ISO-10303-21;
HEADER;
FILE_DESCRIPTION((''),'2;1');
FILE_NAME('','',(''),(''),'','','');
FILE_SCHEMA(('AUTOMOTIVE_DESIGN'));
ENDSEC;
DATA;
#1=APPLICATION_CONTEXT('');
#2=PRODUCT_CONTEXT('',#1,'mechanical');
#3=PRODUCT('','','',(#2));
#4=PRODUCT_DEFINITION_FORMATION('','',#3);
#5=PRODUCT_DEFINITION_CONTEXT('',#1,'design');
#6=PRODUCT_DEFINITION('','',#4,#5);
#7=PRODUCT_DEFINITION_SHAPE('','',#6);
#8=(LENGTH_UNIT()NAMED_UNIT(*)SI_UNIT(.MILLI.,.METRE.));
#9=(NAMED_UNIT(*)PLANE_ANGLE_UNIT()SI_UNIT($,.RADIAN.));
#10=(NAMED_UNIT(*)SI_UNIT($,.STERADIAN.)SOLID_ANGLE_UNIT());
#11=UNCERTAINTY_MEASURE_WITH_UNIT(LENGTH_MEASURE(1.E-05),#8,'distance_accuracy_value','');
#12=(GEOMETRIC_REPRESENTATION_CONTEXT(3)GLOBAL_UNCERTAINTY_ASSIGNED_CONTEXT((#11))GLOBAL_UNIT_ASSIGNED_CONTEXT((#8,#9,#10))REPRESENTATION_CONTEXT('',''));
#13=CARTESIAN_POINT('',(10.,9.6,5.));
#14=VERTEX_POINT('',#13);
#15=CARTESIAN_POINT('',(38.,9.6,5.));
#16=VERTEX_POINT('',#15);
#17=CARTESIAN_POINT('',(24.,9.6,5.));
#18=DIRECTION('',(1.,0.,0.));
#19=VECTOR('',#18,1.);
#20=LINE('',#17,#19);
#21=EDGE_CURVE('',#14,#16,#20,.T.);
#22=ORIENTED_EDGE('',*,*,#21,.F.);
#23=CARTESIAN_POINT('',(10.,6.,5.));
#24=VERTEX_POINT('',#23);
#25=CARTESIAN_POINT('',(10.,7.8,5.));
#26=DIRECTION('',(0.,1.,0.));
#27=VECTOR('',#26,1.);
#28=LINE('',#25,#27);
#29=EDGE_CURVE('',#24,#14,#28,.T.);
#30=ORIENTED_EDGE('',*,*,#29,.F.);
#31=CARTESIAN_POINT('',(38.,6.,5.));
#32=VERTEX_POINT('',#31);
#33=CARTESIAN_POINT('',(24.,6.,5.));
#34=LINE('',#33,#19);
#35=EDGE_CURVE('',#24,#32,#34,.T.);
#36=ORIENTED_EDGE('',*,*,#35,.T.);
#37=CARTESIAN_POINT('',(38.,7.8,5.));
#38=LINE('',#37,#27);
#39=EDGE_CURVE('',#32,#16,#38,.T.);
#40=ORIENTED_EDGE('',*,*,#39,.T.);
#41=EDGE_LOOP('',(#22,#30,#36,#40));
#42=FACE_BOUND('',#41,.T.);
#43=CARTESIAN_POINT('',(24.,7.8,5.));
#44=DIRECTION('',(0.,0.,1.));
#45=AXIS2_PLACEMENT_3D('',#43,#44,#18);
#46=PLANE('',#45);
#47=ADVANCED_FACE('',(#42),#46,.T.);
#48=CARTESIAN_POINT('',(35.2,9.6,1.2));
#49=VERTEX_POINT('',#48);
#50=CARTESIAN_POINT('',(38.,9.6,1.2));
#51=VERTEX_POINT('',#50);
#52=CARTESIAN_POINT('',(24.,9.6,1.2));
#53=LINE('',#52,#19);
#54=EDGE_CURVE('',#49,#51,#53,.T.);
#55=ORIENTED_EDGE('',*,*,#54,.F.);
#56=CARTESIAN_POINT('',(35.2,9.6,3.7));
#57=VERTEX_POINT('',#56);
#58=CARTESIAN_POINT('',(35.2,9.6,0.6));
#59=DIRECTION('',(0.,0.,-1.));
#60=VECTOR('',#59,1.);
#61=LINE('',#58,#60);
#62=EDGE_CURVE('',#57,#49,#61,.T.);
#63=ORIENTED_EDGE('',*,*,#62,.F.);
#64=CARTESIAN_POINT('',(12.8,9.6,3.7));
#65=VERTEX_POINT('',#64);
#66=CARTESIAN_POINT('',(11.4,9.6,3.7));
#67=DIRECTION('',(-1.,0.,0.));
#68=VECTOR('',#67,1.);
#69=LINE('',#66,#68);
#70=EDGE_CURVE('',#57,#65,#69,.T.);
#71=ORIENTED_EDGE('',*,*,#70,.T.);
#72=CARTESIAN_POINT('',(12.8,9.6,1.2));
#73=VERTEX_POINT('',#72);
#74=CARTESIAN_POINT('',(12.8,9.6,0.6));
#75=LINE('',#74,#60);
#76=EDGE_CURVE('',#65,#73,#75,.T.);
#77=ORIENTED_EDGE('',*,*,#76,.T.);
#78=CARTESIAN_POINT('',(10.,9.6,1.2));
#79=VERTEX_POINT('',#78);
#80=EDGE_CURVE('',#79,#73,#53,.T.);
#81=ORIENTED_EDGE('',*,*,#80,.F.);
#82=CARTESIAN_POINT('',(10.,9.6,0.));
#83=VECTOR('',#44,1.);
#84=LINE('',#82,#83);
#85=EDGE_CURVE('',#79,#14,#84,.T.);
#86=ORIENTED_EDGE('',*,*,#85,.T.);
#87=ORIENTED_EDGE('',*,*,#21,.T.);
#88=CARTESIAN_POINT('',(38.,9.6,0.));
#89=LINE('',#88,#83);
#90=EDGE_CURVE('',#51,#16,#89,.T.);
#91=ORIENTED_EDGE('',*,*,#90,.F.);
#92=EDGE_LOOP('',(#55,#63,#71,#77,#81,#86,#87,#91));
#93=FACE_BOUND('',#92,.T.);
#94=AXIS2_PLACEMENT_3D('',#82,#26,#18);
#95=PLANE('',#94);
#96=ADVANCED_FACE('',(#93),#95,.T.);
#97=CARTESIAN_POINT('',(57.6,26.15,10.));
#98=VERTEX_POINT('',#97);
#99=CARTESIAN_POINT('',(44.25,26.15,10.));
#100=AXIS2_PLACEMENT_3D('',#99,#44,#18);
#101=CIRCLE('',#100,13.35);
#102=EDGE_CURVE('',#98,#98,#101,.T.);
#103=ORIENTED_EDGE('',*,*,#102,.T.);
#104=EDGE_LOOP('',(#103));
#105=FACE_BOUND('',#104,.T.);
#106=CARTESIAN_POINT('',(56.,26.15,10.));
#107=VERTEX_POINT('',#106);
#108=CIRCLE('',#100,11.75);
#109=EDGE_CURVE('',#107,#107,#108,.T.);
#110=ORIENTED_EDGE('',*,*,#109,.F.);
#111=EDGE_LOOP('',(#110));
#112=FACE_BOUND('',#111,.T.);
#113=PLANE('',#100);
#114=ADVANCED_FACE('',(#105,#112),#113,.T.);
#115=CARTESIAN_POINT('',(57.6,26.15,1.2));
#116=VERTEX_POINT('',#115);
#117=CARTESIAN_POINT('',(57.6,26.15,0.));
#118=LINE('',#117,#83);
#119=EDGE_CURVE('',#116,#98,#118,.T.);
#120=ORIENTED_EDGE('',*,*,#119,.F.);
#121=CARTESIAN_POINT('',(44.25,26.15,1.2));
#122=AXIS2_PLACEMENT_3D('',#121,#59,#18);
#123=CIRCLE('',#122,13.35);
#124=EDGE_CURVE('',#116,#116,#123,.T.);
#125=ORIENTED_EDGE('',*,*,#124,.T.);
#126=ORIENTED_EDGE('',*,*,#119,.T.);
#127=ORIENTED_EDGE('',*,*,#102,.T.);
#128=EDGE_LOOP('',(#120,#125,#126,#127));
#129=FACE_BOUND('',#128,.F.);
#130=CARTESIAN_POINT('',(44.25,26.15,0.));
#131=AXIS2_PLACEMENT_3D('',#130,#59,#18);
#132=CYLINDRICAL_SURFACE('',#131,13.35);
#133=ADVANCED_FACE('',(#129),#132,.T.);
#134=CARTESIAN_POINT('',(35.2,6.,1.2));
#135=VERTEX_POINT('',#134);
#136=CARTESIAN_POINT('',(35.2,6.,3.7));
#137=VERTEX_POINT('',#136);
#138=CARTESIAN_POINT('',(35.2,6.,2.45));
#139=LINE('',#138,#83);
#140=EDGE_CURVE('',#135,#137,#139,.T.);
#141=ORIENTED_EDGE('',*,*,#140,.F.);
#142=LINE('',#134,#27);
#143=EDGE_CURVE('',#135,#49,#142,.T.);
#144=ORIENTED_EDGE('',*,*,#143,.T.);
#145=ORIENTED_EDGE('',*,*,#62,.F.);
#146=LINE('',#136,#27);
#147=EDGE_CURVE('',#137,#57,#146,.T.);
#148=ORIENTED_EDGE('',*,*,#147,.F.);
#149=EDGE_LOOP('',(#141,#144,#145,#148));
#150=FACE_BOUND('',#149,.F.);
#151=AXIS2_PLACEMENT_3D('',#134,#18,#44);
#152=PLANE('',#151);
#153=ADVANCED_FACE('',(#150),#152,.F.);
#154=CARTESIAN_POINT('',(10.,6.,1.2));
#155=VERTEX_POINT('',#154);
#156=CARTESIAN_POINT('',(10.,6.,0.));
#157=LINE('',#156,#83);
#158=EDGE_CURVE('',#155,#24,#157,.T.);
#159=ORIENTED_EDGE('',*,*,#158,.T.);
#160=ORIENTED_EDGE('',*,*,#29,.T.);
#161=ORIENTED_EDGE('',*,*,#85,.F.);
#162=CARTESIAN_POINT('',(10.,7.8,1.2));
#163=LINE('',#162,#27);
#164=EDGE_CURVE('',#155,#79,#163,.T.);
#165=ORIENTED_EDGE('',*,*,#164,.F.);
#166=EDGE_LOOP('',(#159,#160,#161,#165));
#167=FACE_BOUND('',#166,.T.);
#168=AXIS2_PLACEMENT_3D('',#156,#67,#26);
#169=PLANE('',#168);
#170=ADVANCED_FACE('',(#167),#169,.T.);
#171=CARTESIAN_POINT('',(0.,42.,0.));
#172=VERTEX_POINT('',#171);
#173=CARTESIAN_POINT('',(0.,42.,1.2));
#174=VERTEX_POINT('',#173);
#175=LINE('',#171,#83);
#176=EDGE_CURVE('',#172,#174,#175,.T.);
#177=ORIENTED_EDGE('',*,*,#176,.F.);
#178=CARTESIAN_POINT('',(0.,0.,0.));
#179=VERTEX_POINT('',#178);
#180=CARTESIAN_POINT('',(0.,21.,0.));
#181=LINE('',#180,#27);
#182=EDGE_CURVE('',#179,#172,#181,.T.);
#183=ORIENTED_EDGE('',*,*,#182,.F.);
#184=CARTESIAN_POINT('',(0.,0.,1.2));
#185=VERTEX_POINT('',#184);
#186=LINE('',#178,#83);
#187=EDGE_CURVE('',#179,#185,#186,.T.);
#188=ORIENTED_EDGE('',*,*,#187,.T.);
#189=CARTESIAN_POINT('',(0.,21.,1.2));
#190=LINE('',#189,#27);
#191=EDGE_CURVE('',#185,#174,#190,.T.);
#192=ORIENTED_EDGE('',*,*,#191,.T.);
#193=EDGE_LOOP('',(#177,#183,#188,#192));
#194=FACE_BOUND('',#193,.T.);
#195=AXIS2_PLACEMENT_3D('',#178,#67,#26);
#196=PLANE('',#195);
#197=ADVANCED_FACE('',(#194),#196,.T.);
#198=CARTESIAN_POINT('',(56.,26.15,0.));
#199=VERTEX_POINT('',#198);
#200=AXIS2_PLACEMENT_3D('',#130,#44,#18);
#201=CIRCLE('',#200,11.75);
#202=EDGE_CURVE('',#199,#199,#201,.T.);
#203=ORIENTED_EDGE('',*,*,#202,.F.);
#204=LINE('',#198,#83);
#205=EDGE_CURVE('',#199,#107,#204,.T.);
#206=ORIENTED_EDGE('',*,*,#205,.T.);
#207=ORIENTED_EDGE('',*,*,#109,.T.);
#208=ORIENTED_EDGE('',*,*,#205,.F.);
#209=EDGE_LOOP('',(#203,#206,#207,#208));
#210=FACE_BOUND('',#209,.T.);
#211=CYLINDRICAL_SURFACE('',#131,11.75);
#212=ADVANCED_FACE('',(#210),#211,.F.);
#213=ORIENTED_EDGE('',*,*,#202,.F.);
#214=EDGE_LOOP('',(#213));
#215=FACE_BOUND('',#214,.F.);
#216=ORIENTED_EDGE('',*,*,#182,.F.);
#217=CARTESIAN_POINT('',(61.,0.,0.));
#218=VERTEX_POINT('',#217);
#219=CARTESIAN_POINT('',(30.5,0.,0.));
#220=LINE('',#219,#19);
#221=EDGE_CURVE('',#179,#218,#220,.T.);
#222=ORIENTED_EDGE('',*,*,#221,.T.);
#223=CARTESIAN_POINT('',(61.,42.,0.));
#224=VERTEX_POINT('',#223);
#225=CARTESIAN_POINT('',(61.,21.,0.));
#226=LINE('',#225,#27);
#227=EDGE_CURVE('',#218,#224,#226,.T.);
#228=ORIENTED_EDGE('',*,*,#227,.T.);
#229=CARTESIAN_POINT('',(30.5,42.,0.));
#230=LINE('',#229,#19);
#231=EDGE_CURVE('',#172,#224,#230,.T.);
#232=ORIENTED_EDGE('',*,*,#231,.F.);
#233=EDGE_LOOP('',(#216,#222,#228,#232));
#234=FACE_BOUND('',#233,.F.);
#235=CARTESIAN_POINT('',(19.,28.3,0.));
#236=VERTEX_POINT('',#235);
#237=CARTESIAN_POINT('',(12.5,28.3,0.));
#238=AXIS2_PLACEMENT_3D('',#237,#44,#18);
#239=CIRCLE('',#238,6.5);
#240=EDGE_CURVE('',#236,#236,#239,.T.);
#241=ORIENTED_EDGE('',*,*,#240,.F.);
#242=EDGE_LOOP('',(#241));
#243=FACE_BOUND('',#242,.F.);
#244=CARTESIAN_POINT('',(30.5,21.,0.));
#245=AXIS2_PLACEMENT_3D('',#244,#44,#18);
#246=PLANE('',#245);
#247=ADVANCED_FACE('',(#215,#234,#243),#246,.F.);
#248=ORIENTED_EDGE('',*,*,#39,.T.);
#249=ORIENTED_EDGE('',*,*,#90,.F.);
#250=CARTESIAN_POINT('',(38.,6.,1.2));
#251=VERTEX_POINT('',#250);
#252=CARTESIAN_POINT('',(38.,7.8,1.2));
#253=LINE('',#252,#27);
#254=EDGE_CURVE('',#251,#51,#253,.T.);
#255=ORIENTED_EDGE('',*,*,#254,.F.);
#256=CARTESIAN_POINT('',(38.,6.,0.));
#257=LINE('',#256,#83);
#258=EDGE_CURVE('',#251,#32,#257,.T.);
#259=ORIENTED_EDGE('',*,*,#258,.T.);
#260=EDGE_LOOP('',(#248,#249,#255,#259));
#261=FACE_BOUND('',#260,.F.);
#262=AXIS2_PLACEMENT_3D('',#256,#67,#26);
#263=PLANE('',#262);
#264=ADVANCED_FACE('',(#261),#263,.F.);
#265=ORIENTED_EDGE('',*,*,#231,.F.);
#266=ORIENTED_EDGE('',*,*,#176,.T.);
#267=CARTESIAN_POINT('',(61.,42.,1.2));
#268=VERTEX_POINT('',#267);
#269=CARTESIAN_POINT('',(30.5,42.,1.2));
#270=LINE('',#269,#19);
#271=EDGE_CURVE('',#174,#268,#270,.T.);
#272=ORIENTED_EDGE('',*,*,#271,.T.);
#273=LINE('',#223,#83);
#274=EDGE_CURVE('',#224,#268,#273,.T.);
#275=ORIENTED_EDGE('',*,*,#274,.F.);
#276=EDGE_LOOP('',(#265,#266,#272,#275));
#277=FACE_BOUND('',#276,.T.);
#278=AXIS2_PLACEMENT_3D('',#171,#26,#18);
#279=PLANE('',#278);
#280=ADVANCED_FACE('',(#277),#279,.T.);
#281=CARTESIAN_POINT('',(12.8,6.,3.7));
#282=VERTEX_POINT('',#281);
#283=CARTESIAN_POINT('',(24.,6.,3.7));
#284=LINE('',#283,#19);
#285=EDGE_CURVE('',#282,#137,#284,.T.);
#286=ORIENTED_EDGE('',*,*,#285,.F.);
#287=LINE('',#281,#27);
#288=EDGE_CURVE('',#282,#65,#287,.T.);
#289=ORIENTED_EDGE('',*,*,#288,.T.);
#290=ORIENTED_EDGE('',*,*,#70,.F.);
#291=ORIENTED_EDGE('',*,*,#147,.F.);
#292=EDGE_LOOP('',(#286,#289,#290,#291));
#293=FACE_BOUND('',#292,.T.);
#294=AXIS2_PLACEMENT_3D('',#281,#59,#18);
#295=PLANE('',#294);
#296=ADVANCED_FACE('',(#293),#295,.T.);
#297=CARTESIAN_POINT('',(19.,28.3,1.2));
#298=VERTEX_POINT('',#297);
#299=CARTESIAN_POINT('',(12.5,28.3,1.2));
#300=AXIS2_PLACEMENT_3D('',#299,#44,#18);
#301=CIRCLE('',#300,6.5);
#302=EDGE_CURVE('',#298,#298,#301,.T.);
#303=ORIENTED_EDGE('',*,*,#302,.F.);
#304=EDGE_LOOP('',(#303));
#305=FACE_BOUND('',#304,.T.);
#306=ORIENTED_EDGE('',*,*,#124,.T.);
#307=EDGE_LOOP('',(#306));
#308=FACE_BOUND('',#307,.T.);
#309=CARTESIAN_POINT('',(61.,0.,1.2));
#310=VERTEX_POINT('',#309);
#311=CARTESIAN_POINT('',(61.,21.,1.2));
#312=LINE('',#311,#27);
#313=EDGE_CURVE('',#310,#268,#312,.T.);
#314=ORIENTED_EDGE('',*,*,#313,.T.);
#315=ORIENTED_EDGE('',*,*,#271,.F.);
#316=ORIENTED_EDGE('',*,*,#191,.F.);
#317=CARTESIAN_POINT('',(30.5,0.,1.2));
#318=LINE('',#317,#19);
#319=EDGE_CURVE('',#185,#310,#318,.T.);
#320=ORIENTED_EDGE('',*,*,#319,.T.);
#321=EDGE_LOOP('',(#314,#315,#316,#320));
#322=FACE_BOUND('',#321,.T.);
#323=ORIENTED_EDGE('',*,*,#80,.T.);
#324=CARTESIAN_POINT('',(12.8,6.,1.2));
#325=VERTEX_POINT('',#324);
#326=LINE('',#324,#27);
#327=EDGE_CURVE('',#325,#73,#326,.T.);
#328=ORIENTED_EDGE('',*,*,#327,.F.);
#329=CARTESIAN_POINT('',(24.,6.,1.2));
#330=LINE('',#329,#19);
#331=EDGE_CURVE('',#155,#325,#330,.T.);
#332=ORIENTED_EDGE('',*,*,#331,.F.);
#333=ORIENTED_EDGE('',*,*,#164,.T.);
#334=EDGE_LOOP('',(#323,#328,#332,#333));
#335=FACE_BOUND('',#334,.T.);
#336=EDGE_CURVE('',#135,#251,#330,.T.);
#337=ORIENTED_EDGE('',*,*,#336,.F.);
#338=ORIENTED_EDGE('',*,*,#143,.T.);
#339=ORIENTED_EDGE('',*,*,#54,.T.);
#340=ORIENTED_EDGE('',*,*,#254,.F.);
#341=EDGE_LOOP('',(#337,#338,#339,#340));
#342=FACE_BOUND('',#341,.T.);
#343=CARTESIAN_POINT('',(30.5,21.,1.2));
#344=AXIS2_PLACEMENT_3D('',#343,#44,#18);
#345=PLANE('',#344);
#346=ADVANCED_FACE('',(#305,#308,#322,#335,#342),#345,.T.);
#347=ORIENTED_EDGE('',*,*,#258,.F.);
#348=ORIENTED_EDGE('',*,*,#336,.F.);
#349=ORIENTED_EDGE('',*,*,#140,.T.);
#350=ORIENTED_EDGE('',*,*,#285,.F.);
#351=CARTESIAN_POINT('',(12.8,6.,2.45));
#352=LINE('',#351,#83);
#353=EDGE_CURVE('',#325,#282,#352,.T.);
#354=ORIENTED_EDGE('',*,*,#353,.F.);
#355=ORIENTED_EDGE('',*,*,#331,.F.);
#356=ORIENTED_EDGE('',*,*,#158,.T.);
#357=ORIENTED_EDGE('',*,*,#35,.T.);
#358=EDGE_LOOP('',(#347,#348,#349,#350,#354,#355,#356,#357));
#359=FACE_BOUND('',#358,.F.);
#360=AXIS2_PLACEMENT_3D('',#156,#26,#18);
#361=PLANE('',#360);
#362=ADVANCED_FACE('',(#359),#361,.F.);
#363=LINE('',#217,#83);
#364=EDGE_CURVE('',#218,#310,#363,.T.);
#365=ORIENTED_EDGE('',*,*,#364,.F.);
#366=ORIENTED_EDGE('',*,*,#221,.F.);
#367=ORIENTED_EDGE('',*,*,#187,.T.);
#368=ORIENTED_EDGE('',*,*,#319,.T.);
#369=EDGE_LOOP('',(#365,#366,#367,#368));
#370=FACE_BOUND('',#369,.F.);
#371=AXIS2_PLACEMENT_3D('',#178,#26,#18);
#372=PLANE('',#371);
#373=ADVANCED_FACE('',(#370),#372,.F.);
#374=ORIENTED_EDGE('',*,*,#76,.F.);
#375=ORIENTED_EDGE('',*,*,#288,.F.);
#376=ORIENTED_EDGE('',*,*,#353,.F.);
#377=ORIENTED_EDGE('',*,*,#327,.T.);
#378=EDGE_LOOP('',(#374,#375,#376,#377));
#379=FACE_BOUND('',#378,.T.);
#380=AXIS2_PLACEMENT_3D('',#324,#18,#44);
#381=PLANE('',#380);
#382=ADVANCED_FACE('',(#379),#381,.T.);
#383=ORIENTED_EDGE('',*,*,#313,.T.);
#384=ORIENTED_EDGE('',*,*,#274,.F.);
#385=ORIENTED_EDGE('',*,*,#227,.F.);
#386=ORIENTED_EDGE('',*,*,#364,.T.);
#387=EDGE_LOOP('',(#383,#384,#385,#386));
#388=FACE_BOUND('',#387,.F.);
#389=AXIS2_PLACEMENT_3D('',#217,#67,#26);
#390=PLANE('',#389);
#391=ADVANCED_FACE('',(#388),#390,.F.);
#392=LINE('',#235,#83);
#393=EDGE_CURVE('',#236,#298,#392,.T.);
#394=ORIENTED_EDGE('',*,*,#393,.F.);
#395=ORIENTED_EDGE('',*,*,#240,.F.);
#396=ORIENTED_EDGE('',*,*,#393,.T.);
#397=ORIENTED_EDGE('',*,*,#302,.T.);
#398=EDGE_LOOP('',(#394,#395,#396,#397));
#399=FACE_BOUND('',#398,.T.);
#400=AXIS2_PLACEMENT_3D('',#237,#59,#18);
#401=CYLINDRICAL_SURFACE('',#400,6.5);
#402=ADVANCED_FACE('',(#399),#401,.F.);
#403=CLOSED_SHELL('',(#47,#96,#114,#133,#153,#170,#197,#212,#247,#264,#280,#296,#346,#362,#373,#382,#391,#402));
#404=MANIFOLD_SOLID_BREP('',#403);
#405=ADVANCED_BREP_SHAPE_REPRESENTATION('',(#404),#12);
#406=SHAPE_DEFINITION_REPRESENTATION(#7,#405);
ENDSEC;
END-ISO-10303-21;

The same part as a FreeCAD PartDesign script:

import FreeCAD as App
import Part
import Sketcher
Q = App.Units.Quantity

doc = App.newDocument("Part")
body = doc.addObject("PartDesign::Body", "Body")

sketch1 = body.newObject("Sketcher::SketchObject", "Sketch")
sketch1.AttachmentSupport = (doc.getObject("XY_Plane"), [""])
sketch1.MapMode = "FlatFace"
sketch1.addGeometry(Part.LineSegment(App.Vector(0, 42, 0), App.Vector(0, 0, 0)), False)
sketch1.addGeometry(Part.LineSegment(App.Vector(0, 0, 0), App.Vector(61, 0, 0)), False)
sketch1.addGeometry(Part.LineSegment(App.Vector(61, 0, 0), App.Vector(61, 42, 0)), False)
sketch1.addGeometry(Part.LineSegment(App.Vector(61, 42, 0), App.Vector(0, 42, 0)), False)
sketch1.addGeometry(Part.LineSegment(App.Vector(38, 6, 0), App.Vector(10, 6, 0)), False)
sketch1.addGeometry(Part.LineSegment(App.Vector(10, 6, 0), App.Vector(10, 9.6, 0)), False)
sketch1.addGeometry(Part.LineSegment(App.Vector(10, 9.6, 0), App.Vector(38, 9.6, 0)), False)
sketch1.addGeometry(Part.LineSegment(App.Vector(38, 9.6, 0), App.Vector(38, 6, 0)), False)
sketch1.addGeometry(Part.Circle(App.Vector(12.5, 28.3, 0), App.Vector(0, 0, 1), 6.5), False)
sketch1.addGeometry(Part.Circle(App.Vector(44.2, 26.1, 0), App.Vector(0, 0, 1), 11.8), False)
sketch1.addConstraint(Sketcher.Constraint("Coincident", 0, 2, 1, 1))
sketch1.addConstraint(Sketcher.Constraint("Coincident", 1, 2, 2, 1))
sketch1.addConstraint(Sketcher.Constraint("Coincident", 2, 2, 3, 1))
sketch1.addConstraint(Sketcher.Constraint("Coincident", 3, 2, 0, 1))
sketch1.addConstraint(Sketcher.Constraint("Coincident", 4, 2, 5, 1))
sketch1.addConstraint(Sketcher.Constraint("Coincident", 5, 2, 6, 1))
sketch1.addConstraint(Sketcher.Constraint("Coincident", 6, 2, 7, 1))
sketch1.addConstraint(Sketcher.Constraint("Coincident", 7, 2, 4, 1))
sketch1.addConstraint(Sketcher.Constraint("Vertical", 0))
sketch1.addConstraint(Sketcher.Constraint("Horizontal", 1))
sketch1.addConstraint(Sketcher.Constraint("Vertical", 2))
sketch1.addConstraint(Sketcher.Constraint("Horizontal", 3))
sketch1.addConstraint(Sketcher.Constraint("Horizontal", 4))
sketch1.addConstraint(Sketcher.Constraint("Vertical", 5))
sketch1.addConstraint(Sketcher.Constraint("Horizontal", 6))
sketch1.addConstraint(Sketcher.Constraint("Vertical", 7))
sketch1.addConstraint(Sketcher.Constraint("Coincident", 0, 2, -1, 1))
sketch1.addConstraint(Sketcher.Constraint("Diameter", 8, Q("13 mm")))
sketch1.addConstraint(Sketcher.Constraint("Diameter", 9, Q("23.5 mm")))
sketch1.addConstraint(Sketcher.Constraint("DistanceX", 1, 1, 1, 2, Q("61 mm")))
sketch1.addConstraint(Sketcher.Constraint("DistanceX", 4, 2, 4, 1, Q("28 mm")))
sketch1.addConstraint(Sketcher.Constraint("DistanceY", 0, 2, 0, 1, Q("42 mm")))
sketch1.addConstraint(Sketcher.Constraint("DistanceY", 5, 1, 5, 2, Q("3.6 mm")))
sketch1.addConstraint(Sketcher.Constraint("DistanceX", -1, 1, 4, 2, Q("10 mm")))
sketch1.addConstraint(Sketcher.Constraint("DistanceY", -1, 1, 4, 2, Q("6 mm")))
sketch1.addConstraint(Sketcher.Constraint("DistanceX", -1, 1, 8, 3, Q("12.5 mm")))
sketch1.addConstraint(Sketcher.Constraint("DistanceY", -1, 1, 8, 3, Q("28.3 mm")))
sketch1.addConstraint(Sketcher.Constraint("DistanceX", -1, 1, 9, 3, Q("44.25 mm")))
sketch1.addConstraint(Sketcher.Constraint("DistanceY", -1, 1, 9, 3, Q("26.15 mm")))
pad1 = body.newObject("PartDesign::Pad", "Pad")
pad1.Profile = sketch1
pad1.Length = 1.2

sketch2 = body.newObject("Sketcher::SketchObject", "Sketch001")
sketch2.AttachmentSupport = (doc.getObject("XY_Plane"), [""])
sketch2.MapMode = "FlatFace"
sketch2.addGeometry(Part.Circle(App.Vector(44, 26, 0), App.Vector(0, 0, 1), 13), False)
sketch2.addGeometry(Part.Circle(App.Vector(44, 26, 0), App.Vector(0, 0, 1), 12), False)
sketch2.addConstraint(Sketcher.Constraint("Coincident", 1, 3, 0, 3))
sketch2.addConstraint(Sketcher.Constraint("Diameter", 0, Q("26.7 mm")))
sketch2.addConstraint(Sketcher.Constraint("Diameter", 1, Q("23.5 mm")))
sketch2.addConstraint(Sketcher.Constraint("DistanceX", -1, 1, 0, 3, Q("44.25 mm")))
sketch2.addConstraint(Sketcher.Constraint("DistanceY", -1, 1, 0, 3, Q("26.15 mm")))
pad2 = body.newObject("PartDesign::Pad", "Pad001")
pad2.Profile = sketch2
pad2.Length = 10

sketch3 = body.newObject("Sketcher::SketchObject", "Sketch002")
sketch3.AttachmentSupport = (doc.getObject("XY_Plane"), [""])
sketch3.MapMode = "FlatFace"
sketch3.addGeometry(Part.LineSegment(App.Vector(10, 9.6, 0), App.Vector(10, 6, 0)), False)
sketch3.addGeometry(Part.LineSegment(App.Vector(10, 6, 0), App.Vector(38, 6, 0)), False)
sketch3.addGeometry(Part.LineSegment(App.Vector(38, 6, 0), App.Vector(38, 9.6, 0)), False)
sketch3.addGeometry(Part.LineSegment(App.Vector(38, 9.6, 0), App.Vector(10, 9.6, 0)), False)
sketch3.addConstraint(Sketcher.Constraint("Coincident", 0, 2, 1, 1))
sketch3.addConstraint(Sketcher.Constraint("Coincident", 1, 2, 2, 1))
sketch3.addConstraint(Sketcher.Constraint("Coincident", 2, 2, 3, 1))
sketch3.addConstraint(Sketcher.Constraint("Coincident", 3, 2, 0, 1))
sketch3.addConstraint(Sketcher.Constraint("Vertical", 0))
sketch3.addConstraint(Sketcher.Constraint("Horizontal", 1))
sketch3.addConstraint(Sketcher.Constraint("Vertical", 2))
sketch3.addConstraint(Sketcher.Constraint("Horizontal", 3))
sketch3.addConstraint(Sketcher.Constraint("DistanceX", 1, 1, 1, 2, Q("28 mm")))
sketch3.addConstraint(Sketcher.Constraint("DistanceY", 0, 2, 0, 1, Q("3.6 mm")))
sketch3.addConstraint(Sketcher.Constraint("DistanceX", -1, 1, 0, 2, Q("10 mm")))
sketch3.addConstraint(Sketcher.Constraint("DistanceY", -1, 1, 0, 2, Q("6 mm")))
pad3 = body.newObject("PartDesign::Pad", "Pad002")
pad3.Profile = sketch3
pad3.Length = 5

sketch4 = body.newObject("Sketcher::SketchObject", "Sketch003")
sketch4.AttachmentSupport = (doc.getObject("XZ_Plane"), [""])
sketch4.MapMode = "FlatFace"
sketch4.AttachmentOffset = App.Placement(App.Vector(0, 0, -6), App.Rotation())
sketch4.addGeometry(Part.LineSegment(App.Vector(12.8, 3.7, 0), App.Vector(12.8, 1.2, 0)), False)
sketch4.addGeometry(Part.LineSegment(App.Vector(12.8, 1.2, 0), App.Vector(35.2, 1.2, 0)), False)
sketch4.addGeometry(Part.LineSegment(App.Vector(35.2, 1.2, 0), App.Vector(35.2, 3.7, 0)), False)
sketch4.addGeometry(Part.LineSegment(App.Vector(35.2, 3.7, 0), App.Vector(12.8, 3.7, 0)), False)
sketch4.addConstraint(Sketcher.Constraint("Coincident", 0, 2, 1, 1))
sketch4.addConstraint(Sketcher.Constraint("Coincident", 1, 2, 2, 1))
sketch4.addConstraint(Sketcher.Constraint("Coincident", 2, 2, 3, 1))
sketch4.addConstraint(Sketcher.Constraint("Coincident", 3, 2, 0, 1))
sketch4.addConstraint(Sketcher.Constraint("Vertical", 0))
sketch4.addConstraint(Sketcher.Constraint("Horizontal", 1))
sketch4.addConstraint(Sketcher.Constraint("Vertical", 2))
sketch4.addConstraint(Sketcher.Constraint("Horizontal", 3))
sketch4.addConstraint(Sketcher.Constraint("DistanceX", 1, 1, 1, 2, Q("22.4 mm")))
sketch4.addConstraint(Sketcher.Constraint("DistanceY", 0, 2, 0, 1, Q("2.5 mm")))
sketch4.addConstraint(Sketcher.Constraint("DistanceX", -1, 1, 0, 2, Q("12.8 mm")))
sketch4.addConstraint(Sketcher.Constraint("DistanceY", -1, 1, 0, 2, Q("1.2 mm")))
pocket1 = body.newObject("PartDesign::Pocket", "Pocket")
pocket1.Profile = sketch4
pocket1.Length = 5

doc.recompute()
